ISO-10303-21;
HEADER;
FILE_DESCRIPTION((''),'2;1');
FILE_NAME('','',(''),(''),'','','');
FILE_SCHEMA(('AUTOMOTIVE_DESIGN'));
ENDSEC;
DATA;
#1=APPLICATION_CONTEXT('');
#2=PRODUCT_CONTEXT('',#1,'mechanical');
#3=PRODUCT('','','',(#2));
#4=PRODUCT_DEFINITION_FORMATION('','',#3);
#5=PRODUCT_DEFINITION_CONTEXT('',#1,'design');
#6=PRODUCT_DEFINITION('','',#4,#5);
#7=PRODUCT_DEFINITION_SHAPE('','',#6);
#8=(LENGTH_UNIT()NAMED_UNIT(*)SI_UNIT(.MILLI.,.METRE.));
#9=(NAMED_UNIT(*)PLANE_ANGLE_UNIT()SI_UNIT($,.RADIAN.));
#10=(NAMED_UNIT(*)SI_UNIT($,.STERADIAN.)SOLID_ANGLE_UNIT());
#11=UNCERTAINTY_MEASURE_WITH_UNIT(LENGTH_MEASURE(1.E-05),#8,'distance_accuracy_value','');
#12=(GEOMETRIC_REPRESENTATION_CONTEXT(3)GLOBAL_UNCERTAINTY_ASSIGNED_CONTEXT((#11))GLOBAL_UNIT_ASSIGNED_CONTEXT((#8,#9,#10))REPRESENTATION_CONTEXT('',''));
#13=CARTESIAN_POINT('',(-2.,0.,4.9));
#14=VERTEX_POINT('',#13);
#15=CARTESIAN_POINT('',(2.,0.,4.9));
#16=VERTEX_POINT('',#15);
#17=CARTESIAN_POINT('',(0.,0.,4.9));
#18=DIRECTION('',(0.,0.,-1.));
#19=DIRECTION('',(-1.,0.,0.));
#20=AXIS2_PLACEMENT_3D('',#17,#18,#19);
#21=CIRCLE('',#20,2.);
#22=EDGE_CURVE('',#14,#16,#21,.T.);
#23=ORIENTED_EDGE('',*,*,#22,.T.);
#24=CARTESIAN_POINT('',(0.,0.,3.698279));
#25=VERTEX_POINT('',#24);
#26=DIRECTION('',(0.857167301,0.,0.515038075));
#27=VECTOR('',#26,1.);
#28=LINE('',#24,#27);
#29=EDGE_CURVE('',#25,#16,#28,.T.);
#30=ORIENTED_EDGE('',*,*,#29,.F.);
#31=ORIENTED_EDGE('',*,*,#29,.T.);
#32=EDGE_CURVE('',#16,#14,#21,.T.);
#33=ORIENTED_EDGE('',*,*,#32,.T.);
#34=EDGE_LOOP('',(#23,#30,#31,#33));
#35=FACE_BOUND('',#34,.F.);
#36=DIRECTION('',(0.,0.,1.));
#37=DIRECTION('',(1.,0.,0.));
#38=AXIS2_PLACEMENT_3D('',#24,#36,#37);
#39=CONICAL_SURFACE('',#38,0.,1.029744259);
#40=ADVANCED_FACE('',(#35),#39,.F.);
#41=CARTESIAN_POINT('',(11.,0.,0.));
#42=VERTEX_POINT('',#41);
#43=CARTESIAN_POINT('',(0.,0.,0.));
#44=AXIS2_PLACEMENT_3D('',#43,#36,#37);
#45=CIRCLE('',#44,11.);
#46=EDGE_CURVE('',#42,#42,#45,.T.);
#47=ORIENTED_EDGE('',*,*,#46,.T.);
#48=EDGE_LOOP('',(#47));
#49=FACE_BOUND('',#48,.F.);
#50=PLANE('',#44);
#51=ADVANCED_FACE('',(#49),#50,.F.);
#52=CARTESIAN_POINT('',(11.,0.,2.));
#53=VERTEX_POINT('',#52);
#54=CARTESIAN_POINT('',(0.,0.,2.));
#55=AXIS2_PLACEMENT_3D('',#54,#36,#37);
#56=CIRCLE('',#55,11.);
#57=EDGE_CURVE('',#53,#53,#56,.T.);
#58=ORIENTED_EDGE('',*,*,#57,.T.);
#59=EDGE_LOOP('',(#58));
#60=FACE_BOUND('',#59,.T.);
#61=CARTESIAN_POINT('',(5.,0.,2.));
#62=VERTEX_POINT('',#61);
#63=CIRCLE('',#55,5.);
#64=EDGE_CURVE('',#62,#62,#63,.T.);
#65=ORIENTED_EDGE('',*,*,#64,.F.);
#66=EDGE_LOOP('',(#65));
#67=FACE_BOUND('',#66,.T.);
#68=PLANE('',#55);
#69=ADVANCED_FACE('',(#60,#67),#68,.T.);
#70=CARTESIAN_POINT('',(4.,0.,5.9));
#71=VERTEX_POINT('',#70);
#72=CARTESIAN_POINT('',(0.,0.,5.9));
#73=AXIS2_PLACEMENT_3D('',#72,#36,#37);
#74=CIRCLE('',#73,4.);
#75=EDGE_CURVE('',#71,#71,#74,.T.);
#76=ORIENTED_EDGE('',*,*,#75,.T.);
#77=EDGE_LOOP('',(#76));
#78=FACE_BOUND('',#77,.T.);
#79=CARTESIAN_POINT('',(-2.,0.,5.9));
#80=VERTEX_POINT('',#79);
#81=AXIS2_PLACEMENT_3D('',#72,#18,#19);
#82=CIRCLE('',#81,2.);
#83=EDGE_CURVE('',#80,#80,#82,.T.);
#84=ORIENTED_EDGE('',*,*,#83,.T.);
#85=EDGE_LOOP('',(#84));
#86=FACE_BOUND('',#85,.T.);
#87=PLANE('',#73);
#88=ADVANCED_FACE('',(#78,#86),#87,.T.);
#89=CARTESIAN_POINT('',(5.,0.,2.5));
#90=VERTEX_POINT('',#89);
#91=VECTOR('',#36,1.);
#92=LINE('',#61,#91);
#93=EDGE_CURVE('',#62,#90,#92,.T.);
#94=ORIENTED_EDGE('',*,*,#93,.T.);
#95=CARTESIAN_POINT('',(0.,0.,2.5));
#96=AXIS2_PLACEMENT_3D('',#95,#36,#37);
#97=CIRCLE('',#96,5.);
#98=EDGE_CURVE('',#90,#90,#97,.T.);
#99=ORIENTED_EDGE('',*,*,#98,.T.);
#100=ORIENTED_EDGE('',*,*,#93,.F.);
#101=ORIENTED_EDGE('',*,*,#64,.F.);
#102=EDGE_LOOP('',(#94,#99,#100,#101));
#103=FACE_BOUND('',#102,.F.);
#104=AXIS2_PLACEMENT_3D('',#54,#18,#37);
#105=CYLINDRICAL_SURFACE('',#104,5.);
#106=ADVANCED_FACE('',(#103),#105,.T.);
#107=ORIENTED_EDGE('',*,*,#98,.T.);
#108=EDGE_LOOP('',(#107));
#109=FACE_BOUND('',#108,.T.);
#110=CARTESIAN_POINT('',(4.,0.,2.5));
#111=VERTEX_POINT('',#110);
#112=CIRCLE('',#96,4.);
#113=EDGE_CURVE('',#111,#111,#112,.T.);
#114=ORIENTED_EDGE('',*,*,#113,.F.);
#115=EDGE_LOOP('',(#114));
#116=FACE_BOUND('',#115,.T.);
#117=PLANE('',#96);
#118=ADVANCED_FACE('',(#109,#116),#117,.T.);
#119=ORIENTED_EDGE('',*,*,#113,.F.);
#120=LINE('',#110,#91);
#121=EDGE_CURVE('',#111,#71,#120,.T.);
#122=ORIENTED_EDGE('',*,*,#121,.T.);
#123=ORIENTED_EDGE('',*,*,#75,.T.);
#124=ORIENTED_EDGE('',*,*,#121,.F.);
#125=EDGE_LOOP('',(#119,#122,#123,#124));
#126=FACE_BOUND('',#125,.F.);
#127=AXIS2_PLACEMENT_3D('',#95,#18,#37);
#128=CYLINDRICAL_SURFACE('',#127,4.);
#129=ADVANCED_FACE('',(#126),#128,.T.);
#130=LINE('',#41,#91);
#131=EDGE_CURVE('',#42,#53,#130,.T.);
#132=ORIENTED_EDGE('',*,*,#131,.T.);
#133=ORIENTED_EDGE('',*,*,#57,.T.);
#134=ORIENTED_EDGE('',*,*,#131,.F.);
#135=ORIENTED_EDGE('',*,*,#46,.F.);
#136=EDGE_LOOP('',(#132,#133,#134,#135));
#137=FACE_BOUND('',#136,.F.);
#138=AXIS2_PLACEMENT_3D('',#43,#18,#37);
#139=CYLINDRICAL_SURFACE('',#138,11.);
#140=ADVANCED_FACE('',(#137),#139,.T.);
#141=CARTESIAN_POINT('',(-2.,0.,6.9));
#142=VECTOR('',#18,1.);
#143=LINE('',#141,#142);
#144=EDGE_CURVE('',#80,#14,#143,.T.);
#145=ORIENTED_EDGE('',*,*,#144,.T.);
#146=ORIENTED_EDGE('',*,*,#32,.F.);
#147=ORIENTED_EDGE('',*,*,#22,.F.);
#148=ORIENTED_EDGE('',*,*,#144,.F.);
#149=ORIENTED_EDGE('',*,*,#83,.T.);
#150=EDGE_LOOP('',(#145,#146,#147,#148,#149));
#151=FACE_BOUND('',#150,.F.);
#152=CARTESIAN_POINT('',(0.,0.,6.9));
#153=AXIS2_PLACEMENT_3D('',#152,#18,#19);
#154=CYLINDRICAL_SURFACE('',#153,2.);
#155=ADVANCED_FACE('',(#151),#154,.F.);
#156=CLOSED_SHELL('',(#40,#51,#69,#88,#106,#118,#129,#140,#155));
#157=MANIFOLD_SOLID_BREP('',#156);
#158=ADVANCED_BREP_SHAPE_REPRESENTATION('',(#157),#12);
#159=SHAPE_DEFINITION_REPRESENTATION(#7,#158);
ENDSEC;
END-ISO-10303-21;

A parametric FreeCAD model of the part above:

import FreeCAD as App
import Part
import Sketcher

V = App.Vector

doc = App.newDocument("Part")
params = doc.addObject("Spreadsheet::Sheet", "Params")
for row, (alias, value) in enumerate([
    ("sketch1_diameter", "22 mm"),
    ("pad1_length", "2 mm"),
    ("sketch2_diameter", "10 mm"),
    ("pad2_length", "0.5 mm"),
    ("sketch3_diameter", "8 mm"),
    ("pad3_length", "3.4 mm"),
    ("sketch4_diameter", "4 mm"),
    ("hole_diameter", "4 mm"),
    ("hole_depth", "1 mm"),
], start=1):
    params.set(f"A{row}", alias)
    params.set(f"B{row}", "=" + value)
    params.setAlias(f"B{row}", alias)

body = doc.addObject("PartDesign::Body", "Body")

sketch1 = body.newObject("Sketcher::SketchObject", "Sketch")
sketch1.AttachmentSupport = (doc.getObject("XY_Plane"), [""])
sketch1.MapMode = "FlatFace"
sketch1.addGeometry(Part.Circle(V(0, 0, 0), V(0, 0, 1), 11), False)
sketch1.addConstraint([
    Sketcher.Constraint("Coincident", 0, 3, -1, 1),
    Sketcher.Constraint("Diameter", 0, 22.0),
])
sketch1.setExpression("Constraints[1]", "Params.sketch1_diameter")
pad1 = body.newObject("PartDesign::Pad", "Pad")
pad1.Profile = sketch1
pad1.setExpression("Length", "Params.pad1_length")

sketch2 = body.newObject("Sketcher::SketchObject", "Sketch001")
sketch2.AttachmentSupport = (doc.getObject("XY_Plane"), [""])
sketch2.MapMode = "FlatFace"
sketch2.AttachmentOffset = App.Placement(V(0, 0, 2), App.Rotation())
sketch2.addGeometry(Part.Circle(V(0, 0, 0), V(0, 0, 1), 5), False)
sketch2.addConstraint([
    Sketcher.Constraint("Coincident", 0, 3, -1, 1),
    Sketcher.Constraint("Diameter", 0, 10.0),
])
sketch2.setExpression("Constraints[1]", "Params.sketch2_diameter")
pad2 = body.newObject("PartDesign::Pad", "Pad001")
pad2.Profile = sketch2
pad2.setExpression("Length", "Params.pad2_length")

sketch3 = body.newObject("Sketcher::SketchObject", "Sketch002")
sketch3.AttachmentSupport = (doc.getObject("XY_Plane"), [""])
sketch3.MapMode = "FlatFace"
sketch3.AttachmentOffset = App.Placement(V(0, 0, 2.5), App.Rotation())
sketch3.addGeometry(Part.Circle(V(0, 0, 0), V(0, 0, 1), 4), False)
sketch3.addConstraint([
    Sketcher.Constraint("Coincident", 0, 3, -1, 1),
    Sketcher.Constraint("Diameter", 0, 8.0),
])
sketch3.setExpression("Constraints[1]", "Params.sketch3_diameter")
pad3 = body.newObject("PartDesign::Pad", "Pad002")
pad3.Profile = sketch3
pad3.setExpression("Length", "Params.pad3_length")

sketch4 = body.newObject("Sketcher::SketchObject", "Sketch003")
sketch4.AttachmentSupport = (doc.getObject("XY_Plane"), [""])
sketch4.MapMode = "FlatFace"
sketch4.AttachmentOffset = App.Placement(V(0, 0, 5.9), App.Rotation())
sketch4.addGeometry(Part.Circle(V(0, 0, 0), V(0, 0, 1), 2), False)
sketch4.addConstraint([
    Sketcher.Constraint("Coincident", 0, 3, -1, 1),
    Sketcher.Constraint("Diameter", 0, 4.0),
])
sketch4.setExpression("Constraints[1]", "Params.sketch4_diameter")
doc.recompute()
hole = body.newObject("PartDesign::Hole", "Hole")
hole.Profile = sketch4
hole.ThreadType = "None"
hole.setExpression("Diameter", "Params.hole_diameter")
hole.DepthType = "Dimension"
hole.setExpression("Depth", "Params.hole_depth")
hole.DrillPoint = "Angled"
hole.DrillPointAngle = 118

doc.recompute()
